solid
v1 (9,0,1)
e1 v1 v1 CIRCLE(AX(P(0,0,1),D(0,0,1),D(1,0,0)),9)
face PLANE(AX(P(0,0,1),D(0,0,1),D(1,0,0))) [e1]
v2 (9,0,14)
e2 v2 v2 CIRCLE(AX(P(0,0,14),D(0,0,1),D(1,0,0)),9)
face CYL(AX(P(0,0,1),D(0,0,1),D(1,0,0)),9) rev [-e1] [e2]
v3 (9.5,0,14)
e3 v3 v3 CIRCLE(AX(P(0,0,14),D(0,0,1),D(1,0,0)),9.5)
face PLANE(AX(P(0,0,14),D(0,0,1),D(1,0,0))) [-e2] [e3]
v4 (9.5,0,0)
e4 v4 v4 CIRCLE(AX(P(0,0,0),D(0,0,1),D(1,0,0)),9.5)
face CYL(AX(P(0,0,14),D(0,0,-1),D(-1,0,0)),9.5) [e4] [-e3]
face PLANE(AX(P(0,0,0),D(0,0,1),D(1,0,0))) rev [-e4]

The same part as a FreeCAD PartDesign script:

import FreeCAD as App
import Part
import Sketcher

doc = App.newDocument("Part")
params = doc.addObject("Spreadsheet::Sheet", "Params")
for row, (alias, value) in enumerate([
    ("sketch1_diameter", "19 mm"),
    ("pad1_length", "14 mm"),
    ("sketch2_diameter", "18 mm"),
    ("pocket1_length", "13 mm"),
], start=1):
    params.set(f"A{row}", alias)
    params.set(f"B{row}", "=" + value)
    params.setAlias(f"B{row}", alias)

body = doc.addObject("PartDesign::Body", "Body")

sketch1 = body.newObject("Sketcher::SketchObject", "Sketch")
sketch1.AttachmentSupport = (doc.getObject("XY_Plane"), [""])
sketch1.MapMode = "FlatFace"
sketch1.addGeometry(Part.Circle(App.Vector(0, 0, 0), App.Vector(0, 0, 1), 9.5), False)
sketch1.addConstraint([
    Sketcher.Constraint("Coincident", 0, 3, -1, 1),
    Sketcher.Constraint("Diameter", 0, 19.0),
])
sketch1.setExpression("Constraints[1]", "Params.sketch1_diameter")
pad1 = body.newObject("PartDesign::Pad", "Pad")
pad1.Profile = sketch1
pad1.setExpression("Length", "Params.pad1_length")

sketch2 = body.newObject("Sketcher::SketchObject", "Sketch001")
sketch2.AttachmentSupport = (doc.getObject("XY_Plane"), [""])
sketch2.MapMode = "FlatFace"
sketch2.AttachmentOffset = App.Placement(App.Vector(0, 0, 14), App.Rotation())
sketch2.addGeometry(Part.Circle(App.Vector(0, 0, 0), App.Vector(0, 0, 1), 9), False)
sketch2.addConstraint([
    Sketcher.Constraint("Coincident", 0, 3, -1, 1),
    Sketcher.Constraint("Diameter", 0, 18.0),
])
sketch2.setExpression("Constraints[1]", "Params.sketch2_diameter")
pocket1 = body.newObject("PartDesign::Pocket", "Pocket")
pocket1.Profile = sketch2
pocket1.setExpression("Length", "Params.pocket1_length")

doc.recompute()
